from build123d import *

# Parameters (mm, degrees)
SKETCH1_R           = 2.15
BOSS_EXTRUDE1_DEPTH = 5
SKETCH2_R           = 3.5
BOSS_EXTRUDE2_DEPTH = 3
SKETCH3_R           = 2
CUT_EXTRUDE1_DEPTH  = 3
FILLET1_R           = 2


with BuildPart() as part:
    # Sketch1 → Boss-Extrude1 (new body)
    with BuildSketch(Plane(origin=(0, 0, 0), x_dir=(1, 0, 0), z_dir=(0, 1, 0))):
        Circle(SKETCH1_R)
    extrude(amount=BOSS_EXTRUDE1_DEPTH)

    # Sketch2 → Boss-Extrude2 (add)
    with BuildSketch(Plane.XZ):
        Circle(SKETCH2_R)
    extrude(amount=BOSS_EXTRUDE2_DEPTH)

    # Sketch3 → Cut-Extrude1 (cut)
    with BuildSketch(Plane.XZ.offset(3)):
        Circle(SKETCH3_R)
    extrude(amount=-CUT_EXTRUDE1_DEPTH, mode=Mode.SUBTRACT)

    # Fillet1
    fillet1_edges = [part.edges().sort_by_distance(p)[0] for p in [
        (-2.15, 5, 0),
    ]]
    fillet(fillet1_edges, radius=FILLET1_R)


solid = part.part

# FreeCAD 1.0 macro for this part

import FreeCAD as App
import Part
import Sketcher

V = App.Vector


def edges_at(feature, points):
    """Names of the edges that pass closest to the given points."""
    edges = feature.Shape.Edges
    near = lambda p: min(range(len(edges)), key=lambda i: edges[i].distToShape(Part.Vertex(*p))[0])
    return sorted({f"Edge{near(p) + 1}" for p in points})

doc = App.newDocument("Part")
params = doc.addObject("Spreadsheet::Sheet", "Params")
for row, (alias, value) in enumerate([
    ("sketch1_diameter", "4.3 mm"),
    ("pad1_length", "5 mm"),
    ("sketch2_diameter", "7 mm"),
    ("pad2_length", "3 mm"),
    ("sketch3_diameter", "4 mm"),
    ("pocket1_length", "3 mm"),
    ("fillet_radius", "2 mm"),
], start=1):
    params.set(f"A{row}", alias)
    params.set(f"B{row}", "=" + value)
    params.setAlias(f"B{row}", alias)

body = doc.addObject("PartDesign::Body", "Body")

# Sketch on XZ plane
sketch1 = body.newObject("Sketcher::SketchObject", "Sketch")
sketch1.AttachmentSupport = (doc.getObject("XZ_Plane"), [""])
sketch1.MapMode = "FlatFace"
sketch1.addGeometry(Part.Circle(V(0, 0, 0), V(0, 0, 1), 2.1), False)
sketch1.addConstraint(Sketcher.Constraint("Coincident", 0, 3, -1, 1))
sketch1.addConstraint(Sketcher.Constraint("Diameter", 0, 4.3))
sketch1.setExpression("Constraints[1]", "Params.sketch1_diameter")
pad1 = body.newObject("PartDesign::Pad", "Pad")
pad1.Profile = sketch1
pad1.setExpression("Length", "Params.pad1_length")
pad1.Reversed = True

# Sketch on XZ plane
sketch2 = body.newObject("Sketcher::SketchObject", "Sketch001")
sketch2.AttachmentSupport = (doc.getObject("XZ_Plane"), [""])
sketch2.MapMode = "FlatFace"
sketch2.addGeometry(Part.Circle(V(0, 0, 0), V(0, 0, 1), 3.5), False)
sketch2.addConstraint(Sketcher.Constraint("Coincident", 0, 3, -1, 1))
sketch2.addConstraint(Sketcher.Constraint("Diameter", 0, 7.0))
sketch2.setExpression("Constraints[1]", "Params.sketch2_diameter")
pad2 = body.newObject("PartDesign::Pad", "Pad001")
pad2.Profile = sketch2
pad2.setExpression("Length", "Params.pad2_length")

# Sketch on XZ plane
sketch3 = body.newObject("Sketcher::SketchObject", "Sketch002")
sketch3.AttachmentSupport = (doc.getObject("XZ_Plane"), [""])
sketch3.MapMode = "FlatFace"
sketch3.AttachmentOffset = App.Placement(V(0, 0, 3), App.Rotation())
sketch3.addGeometry(Part.Circle(V(0, 0, 0), V(0, 0, 1), 2), False)
sketch3.addConstraint(Sketcher.Constraint("Coincident", 0, 3, -1, 1))
sketch3.addConstraint(Sketcher.Constraint("Diameter", 0, 4.0))
sketch3.setExpression("Constraints[1]", "Params.sketch3_diameter")
pocket1 = body.newObject("PartDesign::Pocket", "Pocket")
pocket1.Profile = sketch3
pocket1.setExpression("Length", "Params.pocket1_length")
doc.recompute()

fillet = body.newObject("PartDesign::Fillet", "Fillet")
fillet.Base = (pocket1, edges_at(pocket1, [(-2.15, 5, 0)]))
fillet.setExpression("Radius", "Params.fillet_radius")

doc.recompute()
